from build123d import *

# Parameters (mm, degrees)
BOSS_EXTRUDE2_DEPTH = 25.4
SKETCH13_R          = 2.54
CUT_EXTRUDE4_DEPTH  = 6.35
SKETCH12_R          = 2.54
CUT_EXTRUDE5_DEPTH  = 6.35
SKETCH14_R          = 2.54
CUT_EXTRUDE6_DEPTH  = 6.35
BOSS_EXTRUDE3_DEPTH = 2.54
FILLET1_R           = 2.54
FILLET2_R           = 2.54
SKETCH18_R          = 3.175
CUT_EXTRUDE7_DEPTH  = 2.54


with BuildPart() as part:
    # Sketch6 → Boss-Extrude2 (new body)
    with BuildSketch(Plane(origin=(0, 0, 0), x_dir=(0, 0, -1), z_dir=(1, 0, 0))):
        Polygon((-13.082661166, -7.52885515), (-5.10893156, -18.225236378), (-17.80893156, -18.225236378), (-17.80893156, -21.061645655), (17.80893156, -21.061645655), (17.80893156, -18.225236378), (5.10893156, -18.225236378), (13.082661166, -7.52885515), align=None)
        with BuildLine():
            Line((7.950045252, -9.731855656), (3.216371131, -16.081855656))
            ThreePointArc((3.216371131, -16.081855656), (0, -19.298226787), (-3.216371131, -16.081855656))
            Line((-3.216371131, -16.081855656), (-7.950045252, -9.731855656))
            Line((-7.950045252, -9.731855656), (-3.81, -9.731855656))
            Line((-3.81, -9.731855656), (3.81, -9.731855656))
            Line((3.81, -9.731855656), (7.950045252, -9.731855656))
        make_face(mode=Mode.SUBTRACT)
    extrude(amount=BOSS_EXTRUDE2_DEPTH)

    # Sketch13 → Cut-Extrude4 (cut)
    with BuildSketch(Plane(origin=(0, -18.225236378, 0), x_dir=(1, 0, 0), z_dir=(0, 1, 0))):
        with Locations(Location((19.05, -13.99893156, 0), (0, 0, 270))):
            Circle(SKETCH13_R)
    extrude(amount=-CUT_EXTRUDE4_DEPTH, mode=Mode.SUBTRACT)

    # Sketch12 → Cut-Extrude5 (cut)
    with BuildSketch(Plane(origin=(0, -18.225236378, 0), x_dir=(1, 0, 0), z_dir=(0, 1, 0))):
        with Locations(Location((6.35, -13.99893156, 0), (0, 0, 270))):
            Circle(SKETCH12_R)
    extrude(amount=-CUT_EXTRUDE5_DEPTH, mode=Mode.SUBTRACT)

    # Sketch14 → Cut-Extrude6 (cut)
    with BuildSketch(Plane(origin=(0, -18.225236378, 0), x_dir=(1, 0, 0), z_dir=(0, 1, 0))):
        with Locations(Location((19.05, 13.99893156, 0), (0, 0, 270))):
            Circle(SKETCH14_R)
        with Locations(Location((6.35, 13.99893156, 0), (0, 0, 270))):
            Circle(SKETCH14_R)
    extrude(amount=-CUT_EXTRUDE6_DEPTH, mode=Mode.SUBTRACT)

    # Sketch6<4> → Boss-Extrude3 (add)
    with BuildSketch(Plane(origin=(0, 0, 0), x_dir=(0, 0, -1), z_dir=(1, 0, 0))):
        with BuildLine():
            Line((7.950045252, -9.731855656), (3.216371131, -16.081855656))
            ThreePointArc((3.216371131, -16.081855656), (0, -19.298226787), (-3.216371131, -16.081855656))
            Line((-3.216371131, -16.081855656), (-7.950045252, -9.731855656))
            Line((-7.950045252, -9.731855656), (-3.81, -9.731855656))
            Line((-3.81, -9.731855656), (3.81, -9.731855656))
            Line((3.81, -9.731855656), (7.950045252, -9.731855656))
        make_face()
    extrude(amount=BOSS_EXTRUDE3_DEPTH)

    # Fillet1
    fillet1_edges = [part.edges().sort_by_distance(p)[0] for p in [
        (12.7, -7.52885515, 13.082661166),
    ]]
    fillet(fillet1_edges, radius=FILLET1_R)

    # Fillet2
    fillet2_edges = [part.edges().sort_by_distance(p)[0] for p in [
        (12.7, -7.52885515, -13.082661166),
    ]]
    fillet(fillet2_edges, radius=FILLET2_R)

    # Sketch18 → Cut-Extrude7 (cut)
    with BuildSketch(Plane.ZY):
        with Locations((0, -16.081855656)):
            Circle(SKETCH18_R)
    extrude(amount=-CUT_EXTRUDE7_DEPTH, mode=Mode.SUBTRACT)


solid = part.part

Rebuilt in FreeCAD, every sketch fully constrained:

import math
import FreeCAD as App
import Part
import Sketcher
Q = App.Units.Quantity


def edges_at(feature, points):
    """Names of the edges that pass closest to the given points."""
    edges = feature.Shape.Edges
    near = lambda p: min(range(len(edges)), key=lambda i: edges[i].distToShape(Part.Vertex(*p))[0])
    return sorted({f"Edge{near(p) + 1}" for p in points})

doc = App.newDocument("Part")
body = doc.addObject("PartDesign::Body", "Body")

sketch1 = body.newObject("Sketcher::SketchObject", "Sketch")
sketch1.AttachmentSupport = (doc.getObject("YZ_Plane"), [""])
sketch1.MapMode = "FlatFace"
sketch1.addGeometry([
    Part.LineSegment(App.Vector(-7.5, 13.1, 0), App.Vector(-18.2, 5.1, 0)),
    Part.LineSegment(App.Vector(-18.2, 5.1, 0), App.Vector(-18.2, 17.8, 0)),
    Part.LineSegment(App.Vector(-18.2, 17.8, 0), App.Vector(-21.1, 17.8, 0)),
    Part.LineSegment(App.Vector(-21.1, 17.8, 0), App.Vector(-21.1, -17.8, 0)),
    Part.LineSegment(App.Vector(-21.1, -17.8, 0), App.Vector(-18.2, -17.8, 0)),
    Part.LineSegment(App.Vector(-18.2, -17.8, 0), App.Vector(-18.2, -5.1, 0)),
    Part.LineSegment(App.Vector(-18.2, -5.1, 0), App.Vector(-7.5, -13.1, 0)),
    Part.LineSegment(App.Vector(-7.5, -13.1, 0), App.Vector(-7.5, 13.1, 0)),
    Part.LineSegment(App.Vector(-9.7, 8, 0), App.Vector(-9.7, -8, 0)),
    Part.LineSegment(App.Vector(-9.7, -8, 0), App.Vector(-16.1, -3.2, 0)),
    Part.ArcOfCircle(Part.Circle(App.Vector(-16.1, 0, 0), App.Vector(0, 0, 1), 3.2), math.radians(90), math.radians(270)),
    Part.LineSegment(App.Vector(-16.1, 3.2, 0), App.Vector(-9.7, 8, 0)),
], False)
sketch1.addConstraint([
    Sketcher.Constraint("Coincident", 0, 2, 1, 1),
    Sketcher.Constraint("Coincident", 1, 2, 2, 1),
    Sketcher.Constraint("Coincident", 2, 2, 3, 1),
    Sketcher.Constraint("Coincident", 3, 2, 4, 1),
    Sketcher.Constraint("Coincident", 4, 2, 5, 1),
    Sketcher.Constraint("Coincident", 5, 2, 6, 1),
    Sketcher.Constraint("Coincident", 6, 2, 7, 1),
    Sketcher.Constraint("Coincident", 7, 2, 0, 1),
    Sketcher.Constraint("Coincident", 8, 2, 9, 1),
    Sketcher.Constraint("Coincident", 9, 2, 10, 2),
    Sketcher.Constraint("Coincident", 10, 1, 11, 1),
    Sketcher.Constraint("Coincident", 11, 2, 8, 1),
    Sketcher.Constraint("Vertical", 1),
    Sketcher.Constraint("Horizontal", 2),
    Sketcher.Constraint("Vertical", 3),
    Sketcher.Constraint("Horizontal", 4),
    Sketcher.Constraint("Vertical", 5),
    Sketcher.Constraint("Vertical", 7),
    Sketcher.Constraint("Vertical", 8),
    Sketcher.Constraint("Symmetric", 1, 2, 4, 2, -1),
    Sketcher.Constraint("Symmetric", 9, 2, 10, 1, -1),
    Sketcher.Constraint("Parallel", 6, 9),
    Sketcher.Constraint("Parallel", 0, 11),
    Sketcher.Constraint("Vertical", 10, 3, 9, 2),
    Sketcher.Constraint("Equal", 1, 5),
    Sketcher.Constraint("Equal", 0, 6),
    Sketcher.Constraint("DistanceY", 1, 1, 1, 2, Q("0.5 in")),
    Sketcher.Constraint("DistanceX", 10, 3, 8, 2, Q("0.25 in")),
    Sketcher.Constraint("Radius", 10, 3.216371),
    Sketcher.Constraint("Distance", 0, 13.341399),
    Sketcher.Constraint("DistanceX", 2, 2, 2, 1, 2.836409),
    Sketcher.Constraint("DistanceY", 8, 2, 8, 1, 15.900091),
    Sketcher.Constraint("DistanceX", 10, 3, 6, 2, 8.553001),
    Sketcher.Constraint("DistanceY", 3, 2, 3, 1, 35.617863),
    Sketcher.Constraint("DistanceX", 10, 3, -1, 1, 16.081856),
])
pad1 = body.newObject("PartDesign::Pad", "Pad")
pad1.Profile = sketch1
pad1.Length = Q("1 in")

sketch2 = body.newObject("Sketcher::SketchObject", "Sketch001")
sketch2.AttachmentSupport = (doc.getObject("XZ_Plane"), [""])
sketch2.MapMode = "FlatFace"
sketch2.AttachmentOffset = App.Placement(App.Vector(0, 0, 18.225236), App.Rotation())
sketch2.addGeometry(Part.Circle(App.Vector(19.1, 14, 0), App.Vector(0, 0, 1), 2.5), False)
sketch2.addConstraint([
    Sketcher.Constraint("Diameter", 0, Q("0.2 in")),
    Sketcher.Constraint("DistanceX", -1, 1, 0, 3, Q("0.75 in")),
    Sketcher.Constraint("DistanceY", -1, 1, 0, 3, 13.998932),
])
pocket1 = body.newObject("PartDesign::Pocket", "Pocket")
pocket1.Profile = sketch2
pocket1.Length = Q("0.25 in")
pocket1.Reversed = True

sketch3 = body.newObject("Sketcher::SketchObject", "Sketch002")
sketch3.AttachmentSupport = (doc.getObject("XZ_Plane"), [""])
sketch3.MapMode = "FlatFace"
sketch3.AttachmentOffset = App.Placement(App.Vector(0, 0, 18.225236), App.Rotation())
sketch3.addGeometry(Part.Circle(App.Vector(6.3, 14, 0), App.Vector(0, 0, 1), 2.5), False)
sketch3.addConstraint([
    Sketcher.Constraint("Diameter", 0, Q("0.2 in")),
    Sketcher.Constraint("DistanceX", -1, 1, 0, 3, Q("0.25 in")),
    Sketcher.Constraint("DistanceY", -1, 1, 0, 3, 13.998932),
])
pocket2 = body.newObject("PartDesign::Pocket", "Pocket001")
pocket2.Profile = sketch3
pocket2.Length = Q("0.25 in")
pocket2.Reversed = True

sketch4 = body.newObject("Sketcher::SketchObject", "Sketch003")
sketch4.AttachmentSupport = (doc.getObject("XZ_Plane"), [""])
sketch4.MapMode = "FlatFace"
sketch4.AttachmentOffset = App.Placement(App.Vector(0, 0, 18.225236), App.Rotation())
sketch4.addGeometry([
    Part.Circle(App.Vector(19.1, -14, 0), App.Vector(0, 0, 1), 2.5),
    Part.Circle(App.Vector(6.3, -14, 0), App.Vector(0, 0, 1), 2.5),
], False)
sketch4.addConstraint([
    Sketcher.Constraint("Equal", 0, 1),
    Sketcher.Constraint("Horizontal", 0, 3, 1, 3),
    Sketcher.Constraint("Diameter", 0, Q("0.2 in")),
    Sketcher.Constraint("DistanceX", 1, 3, 0, 3, Q("0.5 in")),
    Sketcher.Constraint("DistanceX", -1, 1, 0, 3, Q("0.75 in")),
    Sketcher.Constraint("DistanceY", 0, 3, -1, 1, 13.998932),
])
pocket3 = body.newObject("PartDesign::Pocket", "Pocket002")
pocket3.Profile = sketch4
pocket3.Length = Q("0.25 in")
pocket3.Reversed = True

sketch5 = body.newObject("Sketcher::SketchObject", "Sketch004")
sketch5.AttachmentSupport = (doc.getObject("YZ_Plane"), [""])
sketch5.MapMode = "FlatFace"
sketch5.addGeometry([
    Part.LineSegment(App.Vector(-16.1, -3.2, 0), App.Vector(-9.7, -8, 0)),
    Part.LineSegment(App.Vector(-9.7, -8, 0), App.Vector(-9.7, 8, 0)),
    Part.LineSegment(App.Vector(-9.7, 8, 0), App.Vector(-16.1, 3.2, 0)),
    Part.ArcOfCircle(Part.Circle(App.Vector(-16.1, 0, 0), App.Vector(0, 0, 1), 3.2), math.radians(90), math.radians(270)),
], False)
sketch5.addConstraint([
    Sketcher.Constraint("Coincident", 0, 2, 1, 1),
    Sketcher.Constraint("Coincident", 1, 2, 2, 1),
    Sketcher.Constraint("Coincident", 2, 2, 3, 1),
    Sketcher.Constraint("Coincident", 3, 2, 0, 1),
    Sketcher.Constraint("Vertical", 1),
    Sketcher.Constraint("Symmetric", 2, 2, 3, 2, -1),
    Sketcher.Constraint("Vertical", 3, 3, 2, 2),
    Sketcher.Constraint("Equal", 0, 2),
    Sketcher.Constraint("DistanceX", 3, 3, 0, 2, Q("0.25 in")),
    Sketcher.Constraint("Radius", 3, 3.216371),
    Sketcher.Constraint("DistanceY", 1, 1, 1, 2, 15.900091),
    Sketcher.Constraint("DistanceX", 3, 3, -1, 1, 16.081856),
])
pad2 = body.newObject("PartDesign::Pad", "Pad001")
pad2.Profile = sketch5
pad2.Length = Q("0.1 in")
doc.recompute()

fillet = body.newObject("PartDesign::Fillet", "Fillet")
fillet.Base = (pad2, edges_at(pad2, [(12.7, -7.529, 13.083)]))
fillet.Radius = Q("0.1 in")
doc.recompute()

fillet2 = body.newObject("PartDesign::Fillet", "Fillet001")
fillet2.Base = (fillet, edges_at(fillet, [(12.7, -7.529, -13.083)]))
fillet2.Radius = Q("0.1 in")

sketch6 = body.newObject("Sketcher::SketchObject", "Sketch005")
sketch6.AttachmentSupport = (doc.getObject("YZ_Plane"), [""])
sketch6.MapMode = "FlatFace"
sketch6.addGeometry(Part.Circle(App.Vector(-16.1, 0, 0), App.Vector(0, 0, 1), 3.2), False)
sketch6.addConstraint([
    Sketcher.Constraint("PointOnObject", 0, 3, -1),
    Sketcher.Constraint("Diameter", 0, Q("0.25 in")),
    Sketcher.Constraint("DistanceX", 0, 3, -1, 1, 16.081856),
])
pocket4 = body.newObject("PartDesign::Pocket", "Pocket003")
pocket4.Profile = sketch6
pocket4.Length = Q("0.1 in")
pocket4.Reversed = True

doc.recompute()
